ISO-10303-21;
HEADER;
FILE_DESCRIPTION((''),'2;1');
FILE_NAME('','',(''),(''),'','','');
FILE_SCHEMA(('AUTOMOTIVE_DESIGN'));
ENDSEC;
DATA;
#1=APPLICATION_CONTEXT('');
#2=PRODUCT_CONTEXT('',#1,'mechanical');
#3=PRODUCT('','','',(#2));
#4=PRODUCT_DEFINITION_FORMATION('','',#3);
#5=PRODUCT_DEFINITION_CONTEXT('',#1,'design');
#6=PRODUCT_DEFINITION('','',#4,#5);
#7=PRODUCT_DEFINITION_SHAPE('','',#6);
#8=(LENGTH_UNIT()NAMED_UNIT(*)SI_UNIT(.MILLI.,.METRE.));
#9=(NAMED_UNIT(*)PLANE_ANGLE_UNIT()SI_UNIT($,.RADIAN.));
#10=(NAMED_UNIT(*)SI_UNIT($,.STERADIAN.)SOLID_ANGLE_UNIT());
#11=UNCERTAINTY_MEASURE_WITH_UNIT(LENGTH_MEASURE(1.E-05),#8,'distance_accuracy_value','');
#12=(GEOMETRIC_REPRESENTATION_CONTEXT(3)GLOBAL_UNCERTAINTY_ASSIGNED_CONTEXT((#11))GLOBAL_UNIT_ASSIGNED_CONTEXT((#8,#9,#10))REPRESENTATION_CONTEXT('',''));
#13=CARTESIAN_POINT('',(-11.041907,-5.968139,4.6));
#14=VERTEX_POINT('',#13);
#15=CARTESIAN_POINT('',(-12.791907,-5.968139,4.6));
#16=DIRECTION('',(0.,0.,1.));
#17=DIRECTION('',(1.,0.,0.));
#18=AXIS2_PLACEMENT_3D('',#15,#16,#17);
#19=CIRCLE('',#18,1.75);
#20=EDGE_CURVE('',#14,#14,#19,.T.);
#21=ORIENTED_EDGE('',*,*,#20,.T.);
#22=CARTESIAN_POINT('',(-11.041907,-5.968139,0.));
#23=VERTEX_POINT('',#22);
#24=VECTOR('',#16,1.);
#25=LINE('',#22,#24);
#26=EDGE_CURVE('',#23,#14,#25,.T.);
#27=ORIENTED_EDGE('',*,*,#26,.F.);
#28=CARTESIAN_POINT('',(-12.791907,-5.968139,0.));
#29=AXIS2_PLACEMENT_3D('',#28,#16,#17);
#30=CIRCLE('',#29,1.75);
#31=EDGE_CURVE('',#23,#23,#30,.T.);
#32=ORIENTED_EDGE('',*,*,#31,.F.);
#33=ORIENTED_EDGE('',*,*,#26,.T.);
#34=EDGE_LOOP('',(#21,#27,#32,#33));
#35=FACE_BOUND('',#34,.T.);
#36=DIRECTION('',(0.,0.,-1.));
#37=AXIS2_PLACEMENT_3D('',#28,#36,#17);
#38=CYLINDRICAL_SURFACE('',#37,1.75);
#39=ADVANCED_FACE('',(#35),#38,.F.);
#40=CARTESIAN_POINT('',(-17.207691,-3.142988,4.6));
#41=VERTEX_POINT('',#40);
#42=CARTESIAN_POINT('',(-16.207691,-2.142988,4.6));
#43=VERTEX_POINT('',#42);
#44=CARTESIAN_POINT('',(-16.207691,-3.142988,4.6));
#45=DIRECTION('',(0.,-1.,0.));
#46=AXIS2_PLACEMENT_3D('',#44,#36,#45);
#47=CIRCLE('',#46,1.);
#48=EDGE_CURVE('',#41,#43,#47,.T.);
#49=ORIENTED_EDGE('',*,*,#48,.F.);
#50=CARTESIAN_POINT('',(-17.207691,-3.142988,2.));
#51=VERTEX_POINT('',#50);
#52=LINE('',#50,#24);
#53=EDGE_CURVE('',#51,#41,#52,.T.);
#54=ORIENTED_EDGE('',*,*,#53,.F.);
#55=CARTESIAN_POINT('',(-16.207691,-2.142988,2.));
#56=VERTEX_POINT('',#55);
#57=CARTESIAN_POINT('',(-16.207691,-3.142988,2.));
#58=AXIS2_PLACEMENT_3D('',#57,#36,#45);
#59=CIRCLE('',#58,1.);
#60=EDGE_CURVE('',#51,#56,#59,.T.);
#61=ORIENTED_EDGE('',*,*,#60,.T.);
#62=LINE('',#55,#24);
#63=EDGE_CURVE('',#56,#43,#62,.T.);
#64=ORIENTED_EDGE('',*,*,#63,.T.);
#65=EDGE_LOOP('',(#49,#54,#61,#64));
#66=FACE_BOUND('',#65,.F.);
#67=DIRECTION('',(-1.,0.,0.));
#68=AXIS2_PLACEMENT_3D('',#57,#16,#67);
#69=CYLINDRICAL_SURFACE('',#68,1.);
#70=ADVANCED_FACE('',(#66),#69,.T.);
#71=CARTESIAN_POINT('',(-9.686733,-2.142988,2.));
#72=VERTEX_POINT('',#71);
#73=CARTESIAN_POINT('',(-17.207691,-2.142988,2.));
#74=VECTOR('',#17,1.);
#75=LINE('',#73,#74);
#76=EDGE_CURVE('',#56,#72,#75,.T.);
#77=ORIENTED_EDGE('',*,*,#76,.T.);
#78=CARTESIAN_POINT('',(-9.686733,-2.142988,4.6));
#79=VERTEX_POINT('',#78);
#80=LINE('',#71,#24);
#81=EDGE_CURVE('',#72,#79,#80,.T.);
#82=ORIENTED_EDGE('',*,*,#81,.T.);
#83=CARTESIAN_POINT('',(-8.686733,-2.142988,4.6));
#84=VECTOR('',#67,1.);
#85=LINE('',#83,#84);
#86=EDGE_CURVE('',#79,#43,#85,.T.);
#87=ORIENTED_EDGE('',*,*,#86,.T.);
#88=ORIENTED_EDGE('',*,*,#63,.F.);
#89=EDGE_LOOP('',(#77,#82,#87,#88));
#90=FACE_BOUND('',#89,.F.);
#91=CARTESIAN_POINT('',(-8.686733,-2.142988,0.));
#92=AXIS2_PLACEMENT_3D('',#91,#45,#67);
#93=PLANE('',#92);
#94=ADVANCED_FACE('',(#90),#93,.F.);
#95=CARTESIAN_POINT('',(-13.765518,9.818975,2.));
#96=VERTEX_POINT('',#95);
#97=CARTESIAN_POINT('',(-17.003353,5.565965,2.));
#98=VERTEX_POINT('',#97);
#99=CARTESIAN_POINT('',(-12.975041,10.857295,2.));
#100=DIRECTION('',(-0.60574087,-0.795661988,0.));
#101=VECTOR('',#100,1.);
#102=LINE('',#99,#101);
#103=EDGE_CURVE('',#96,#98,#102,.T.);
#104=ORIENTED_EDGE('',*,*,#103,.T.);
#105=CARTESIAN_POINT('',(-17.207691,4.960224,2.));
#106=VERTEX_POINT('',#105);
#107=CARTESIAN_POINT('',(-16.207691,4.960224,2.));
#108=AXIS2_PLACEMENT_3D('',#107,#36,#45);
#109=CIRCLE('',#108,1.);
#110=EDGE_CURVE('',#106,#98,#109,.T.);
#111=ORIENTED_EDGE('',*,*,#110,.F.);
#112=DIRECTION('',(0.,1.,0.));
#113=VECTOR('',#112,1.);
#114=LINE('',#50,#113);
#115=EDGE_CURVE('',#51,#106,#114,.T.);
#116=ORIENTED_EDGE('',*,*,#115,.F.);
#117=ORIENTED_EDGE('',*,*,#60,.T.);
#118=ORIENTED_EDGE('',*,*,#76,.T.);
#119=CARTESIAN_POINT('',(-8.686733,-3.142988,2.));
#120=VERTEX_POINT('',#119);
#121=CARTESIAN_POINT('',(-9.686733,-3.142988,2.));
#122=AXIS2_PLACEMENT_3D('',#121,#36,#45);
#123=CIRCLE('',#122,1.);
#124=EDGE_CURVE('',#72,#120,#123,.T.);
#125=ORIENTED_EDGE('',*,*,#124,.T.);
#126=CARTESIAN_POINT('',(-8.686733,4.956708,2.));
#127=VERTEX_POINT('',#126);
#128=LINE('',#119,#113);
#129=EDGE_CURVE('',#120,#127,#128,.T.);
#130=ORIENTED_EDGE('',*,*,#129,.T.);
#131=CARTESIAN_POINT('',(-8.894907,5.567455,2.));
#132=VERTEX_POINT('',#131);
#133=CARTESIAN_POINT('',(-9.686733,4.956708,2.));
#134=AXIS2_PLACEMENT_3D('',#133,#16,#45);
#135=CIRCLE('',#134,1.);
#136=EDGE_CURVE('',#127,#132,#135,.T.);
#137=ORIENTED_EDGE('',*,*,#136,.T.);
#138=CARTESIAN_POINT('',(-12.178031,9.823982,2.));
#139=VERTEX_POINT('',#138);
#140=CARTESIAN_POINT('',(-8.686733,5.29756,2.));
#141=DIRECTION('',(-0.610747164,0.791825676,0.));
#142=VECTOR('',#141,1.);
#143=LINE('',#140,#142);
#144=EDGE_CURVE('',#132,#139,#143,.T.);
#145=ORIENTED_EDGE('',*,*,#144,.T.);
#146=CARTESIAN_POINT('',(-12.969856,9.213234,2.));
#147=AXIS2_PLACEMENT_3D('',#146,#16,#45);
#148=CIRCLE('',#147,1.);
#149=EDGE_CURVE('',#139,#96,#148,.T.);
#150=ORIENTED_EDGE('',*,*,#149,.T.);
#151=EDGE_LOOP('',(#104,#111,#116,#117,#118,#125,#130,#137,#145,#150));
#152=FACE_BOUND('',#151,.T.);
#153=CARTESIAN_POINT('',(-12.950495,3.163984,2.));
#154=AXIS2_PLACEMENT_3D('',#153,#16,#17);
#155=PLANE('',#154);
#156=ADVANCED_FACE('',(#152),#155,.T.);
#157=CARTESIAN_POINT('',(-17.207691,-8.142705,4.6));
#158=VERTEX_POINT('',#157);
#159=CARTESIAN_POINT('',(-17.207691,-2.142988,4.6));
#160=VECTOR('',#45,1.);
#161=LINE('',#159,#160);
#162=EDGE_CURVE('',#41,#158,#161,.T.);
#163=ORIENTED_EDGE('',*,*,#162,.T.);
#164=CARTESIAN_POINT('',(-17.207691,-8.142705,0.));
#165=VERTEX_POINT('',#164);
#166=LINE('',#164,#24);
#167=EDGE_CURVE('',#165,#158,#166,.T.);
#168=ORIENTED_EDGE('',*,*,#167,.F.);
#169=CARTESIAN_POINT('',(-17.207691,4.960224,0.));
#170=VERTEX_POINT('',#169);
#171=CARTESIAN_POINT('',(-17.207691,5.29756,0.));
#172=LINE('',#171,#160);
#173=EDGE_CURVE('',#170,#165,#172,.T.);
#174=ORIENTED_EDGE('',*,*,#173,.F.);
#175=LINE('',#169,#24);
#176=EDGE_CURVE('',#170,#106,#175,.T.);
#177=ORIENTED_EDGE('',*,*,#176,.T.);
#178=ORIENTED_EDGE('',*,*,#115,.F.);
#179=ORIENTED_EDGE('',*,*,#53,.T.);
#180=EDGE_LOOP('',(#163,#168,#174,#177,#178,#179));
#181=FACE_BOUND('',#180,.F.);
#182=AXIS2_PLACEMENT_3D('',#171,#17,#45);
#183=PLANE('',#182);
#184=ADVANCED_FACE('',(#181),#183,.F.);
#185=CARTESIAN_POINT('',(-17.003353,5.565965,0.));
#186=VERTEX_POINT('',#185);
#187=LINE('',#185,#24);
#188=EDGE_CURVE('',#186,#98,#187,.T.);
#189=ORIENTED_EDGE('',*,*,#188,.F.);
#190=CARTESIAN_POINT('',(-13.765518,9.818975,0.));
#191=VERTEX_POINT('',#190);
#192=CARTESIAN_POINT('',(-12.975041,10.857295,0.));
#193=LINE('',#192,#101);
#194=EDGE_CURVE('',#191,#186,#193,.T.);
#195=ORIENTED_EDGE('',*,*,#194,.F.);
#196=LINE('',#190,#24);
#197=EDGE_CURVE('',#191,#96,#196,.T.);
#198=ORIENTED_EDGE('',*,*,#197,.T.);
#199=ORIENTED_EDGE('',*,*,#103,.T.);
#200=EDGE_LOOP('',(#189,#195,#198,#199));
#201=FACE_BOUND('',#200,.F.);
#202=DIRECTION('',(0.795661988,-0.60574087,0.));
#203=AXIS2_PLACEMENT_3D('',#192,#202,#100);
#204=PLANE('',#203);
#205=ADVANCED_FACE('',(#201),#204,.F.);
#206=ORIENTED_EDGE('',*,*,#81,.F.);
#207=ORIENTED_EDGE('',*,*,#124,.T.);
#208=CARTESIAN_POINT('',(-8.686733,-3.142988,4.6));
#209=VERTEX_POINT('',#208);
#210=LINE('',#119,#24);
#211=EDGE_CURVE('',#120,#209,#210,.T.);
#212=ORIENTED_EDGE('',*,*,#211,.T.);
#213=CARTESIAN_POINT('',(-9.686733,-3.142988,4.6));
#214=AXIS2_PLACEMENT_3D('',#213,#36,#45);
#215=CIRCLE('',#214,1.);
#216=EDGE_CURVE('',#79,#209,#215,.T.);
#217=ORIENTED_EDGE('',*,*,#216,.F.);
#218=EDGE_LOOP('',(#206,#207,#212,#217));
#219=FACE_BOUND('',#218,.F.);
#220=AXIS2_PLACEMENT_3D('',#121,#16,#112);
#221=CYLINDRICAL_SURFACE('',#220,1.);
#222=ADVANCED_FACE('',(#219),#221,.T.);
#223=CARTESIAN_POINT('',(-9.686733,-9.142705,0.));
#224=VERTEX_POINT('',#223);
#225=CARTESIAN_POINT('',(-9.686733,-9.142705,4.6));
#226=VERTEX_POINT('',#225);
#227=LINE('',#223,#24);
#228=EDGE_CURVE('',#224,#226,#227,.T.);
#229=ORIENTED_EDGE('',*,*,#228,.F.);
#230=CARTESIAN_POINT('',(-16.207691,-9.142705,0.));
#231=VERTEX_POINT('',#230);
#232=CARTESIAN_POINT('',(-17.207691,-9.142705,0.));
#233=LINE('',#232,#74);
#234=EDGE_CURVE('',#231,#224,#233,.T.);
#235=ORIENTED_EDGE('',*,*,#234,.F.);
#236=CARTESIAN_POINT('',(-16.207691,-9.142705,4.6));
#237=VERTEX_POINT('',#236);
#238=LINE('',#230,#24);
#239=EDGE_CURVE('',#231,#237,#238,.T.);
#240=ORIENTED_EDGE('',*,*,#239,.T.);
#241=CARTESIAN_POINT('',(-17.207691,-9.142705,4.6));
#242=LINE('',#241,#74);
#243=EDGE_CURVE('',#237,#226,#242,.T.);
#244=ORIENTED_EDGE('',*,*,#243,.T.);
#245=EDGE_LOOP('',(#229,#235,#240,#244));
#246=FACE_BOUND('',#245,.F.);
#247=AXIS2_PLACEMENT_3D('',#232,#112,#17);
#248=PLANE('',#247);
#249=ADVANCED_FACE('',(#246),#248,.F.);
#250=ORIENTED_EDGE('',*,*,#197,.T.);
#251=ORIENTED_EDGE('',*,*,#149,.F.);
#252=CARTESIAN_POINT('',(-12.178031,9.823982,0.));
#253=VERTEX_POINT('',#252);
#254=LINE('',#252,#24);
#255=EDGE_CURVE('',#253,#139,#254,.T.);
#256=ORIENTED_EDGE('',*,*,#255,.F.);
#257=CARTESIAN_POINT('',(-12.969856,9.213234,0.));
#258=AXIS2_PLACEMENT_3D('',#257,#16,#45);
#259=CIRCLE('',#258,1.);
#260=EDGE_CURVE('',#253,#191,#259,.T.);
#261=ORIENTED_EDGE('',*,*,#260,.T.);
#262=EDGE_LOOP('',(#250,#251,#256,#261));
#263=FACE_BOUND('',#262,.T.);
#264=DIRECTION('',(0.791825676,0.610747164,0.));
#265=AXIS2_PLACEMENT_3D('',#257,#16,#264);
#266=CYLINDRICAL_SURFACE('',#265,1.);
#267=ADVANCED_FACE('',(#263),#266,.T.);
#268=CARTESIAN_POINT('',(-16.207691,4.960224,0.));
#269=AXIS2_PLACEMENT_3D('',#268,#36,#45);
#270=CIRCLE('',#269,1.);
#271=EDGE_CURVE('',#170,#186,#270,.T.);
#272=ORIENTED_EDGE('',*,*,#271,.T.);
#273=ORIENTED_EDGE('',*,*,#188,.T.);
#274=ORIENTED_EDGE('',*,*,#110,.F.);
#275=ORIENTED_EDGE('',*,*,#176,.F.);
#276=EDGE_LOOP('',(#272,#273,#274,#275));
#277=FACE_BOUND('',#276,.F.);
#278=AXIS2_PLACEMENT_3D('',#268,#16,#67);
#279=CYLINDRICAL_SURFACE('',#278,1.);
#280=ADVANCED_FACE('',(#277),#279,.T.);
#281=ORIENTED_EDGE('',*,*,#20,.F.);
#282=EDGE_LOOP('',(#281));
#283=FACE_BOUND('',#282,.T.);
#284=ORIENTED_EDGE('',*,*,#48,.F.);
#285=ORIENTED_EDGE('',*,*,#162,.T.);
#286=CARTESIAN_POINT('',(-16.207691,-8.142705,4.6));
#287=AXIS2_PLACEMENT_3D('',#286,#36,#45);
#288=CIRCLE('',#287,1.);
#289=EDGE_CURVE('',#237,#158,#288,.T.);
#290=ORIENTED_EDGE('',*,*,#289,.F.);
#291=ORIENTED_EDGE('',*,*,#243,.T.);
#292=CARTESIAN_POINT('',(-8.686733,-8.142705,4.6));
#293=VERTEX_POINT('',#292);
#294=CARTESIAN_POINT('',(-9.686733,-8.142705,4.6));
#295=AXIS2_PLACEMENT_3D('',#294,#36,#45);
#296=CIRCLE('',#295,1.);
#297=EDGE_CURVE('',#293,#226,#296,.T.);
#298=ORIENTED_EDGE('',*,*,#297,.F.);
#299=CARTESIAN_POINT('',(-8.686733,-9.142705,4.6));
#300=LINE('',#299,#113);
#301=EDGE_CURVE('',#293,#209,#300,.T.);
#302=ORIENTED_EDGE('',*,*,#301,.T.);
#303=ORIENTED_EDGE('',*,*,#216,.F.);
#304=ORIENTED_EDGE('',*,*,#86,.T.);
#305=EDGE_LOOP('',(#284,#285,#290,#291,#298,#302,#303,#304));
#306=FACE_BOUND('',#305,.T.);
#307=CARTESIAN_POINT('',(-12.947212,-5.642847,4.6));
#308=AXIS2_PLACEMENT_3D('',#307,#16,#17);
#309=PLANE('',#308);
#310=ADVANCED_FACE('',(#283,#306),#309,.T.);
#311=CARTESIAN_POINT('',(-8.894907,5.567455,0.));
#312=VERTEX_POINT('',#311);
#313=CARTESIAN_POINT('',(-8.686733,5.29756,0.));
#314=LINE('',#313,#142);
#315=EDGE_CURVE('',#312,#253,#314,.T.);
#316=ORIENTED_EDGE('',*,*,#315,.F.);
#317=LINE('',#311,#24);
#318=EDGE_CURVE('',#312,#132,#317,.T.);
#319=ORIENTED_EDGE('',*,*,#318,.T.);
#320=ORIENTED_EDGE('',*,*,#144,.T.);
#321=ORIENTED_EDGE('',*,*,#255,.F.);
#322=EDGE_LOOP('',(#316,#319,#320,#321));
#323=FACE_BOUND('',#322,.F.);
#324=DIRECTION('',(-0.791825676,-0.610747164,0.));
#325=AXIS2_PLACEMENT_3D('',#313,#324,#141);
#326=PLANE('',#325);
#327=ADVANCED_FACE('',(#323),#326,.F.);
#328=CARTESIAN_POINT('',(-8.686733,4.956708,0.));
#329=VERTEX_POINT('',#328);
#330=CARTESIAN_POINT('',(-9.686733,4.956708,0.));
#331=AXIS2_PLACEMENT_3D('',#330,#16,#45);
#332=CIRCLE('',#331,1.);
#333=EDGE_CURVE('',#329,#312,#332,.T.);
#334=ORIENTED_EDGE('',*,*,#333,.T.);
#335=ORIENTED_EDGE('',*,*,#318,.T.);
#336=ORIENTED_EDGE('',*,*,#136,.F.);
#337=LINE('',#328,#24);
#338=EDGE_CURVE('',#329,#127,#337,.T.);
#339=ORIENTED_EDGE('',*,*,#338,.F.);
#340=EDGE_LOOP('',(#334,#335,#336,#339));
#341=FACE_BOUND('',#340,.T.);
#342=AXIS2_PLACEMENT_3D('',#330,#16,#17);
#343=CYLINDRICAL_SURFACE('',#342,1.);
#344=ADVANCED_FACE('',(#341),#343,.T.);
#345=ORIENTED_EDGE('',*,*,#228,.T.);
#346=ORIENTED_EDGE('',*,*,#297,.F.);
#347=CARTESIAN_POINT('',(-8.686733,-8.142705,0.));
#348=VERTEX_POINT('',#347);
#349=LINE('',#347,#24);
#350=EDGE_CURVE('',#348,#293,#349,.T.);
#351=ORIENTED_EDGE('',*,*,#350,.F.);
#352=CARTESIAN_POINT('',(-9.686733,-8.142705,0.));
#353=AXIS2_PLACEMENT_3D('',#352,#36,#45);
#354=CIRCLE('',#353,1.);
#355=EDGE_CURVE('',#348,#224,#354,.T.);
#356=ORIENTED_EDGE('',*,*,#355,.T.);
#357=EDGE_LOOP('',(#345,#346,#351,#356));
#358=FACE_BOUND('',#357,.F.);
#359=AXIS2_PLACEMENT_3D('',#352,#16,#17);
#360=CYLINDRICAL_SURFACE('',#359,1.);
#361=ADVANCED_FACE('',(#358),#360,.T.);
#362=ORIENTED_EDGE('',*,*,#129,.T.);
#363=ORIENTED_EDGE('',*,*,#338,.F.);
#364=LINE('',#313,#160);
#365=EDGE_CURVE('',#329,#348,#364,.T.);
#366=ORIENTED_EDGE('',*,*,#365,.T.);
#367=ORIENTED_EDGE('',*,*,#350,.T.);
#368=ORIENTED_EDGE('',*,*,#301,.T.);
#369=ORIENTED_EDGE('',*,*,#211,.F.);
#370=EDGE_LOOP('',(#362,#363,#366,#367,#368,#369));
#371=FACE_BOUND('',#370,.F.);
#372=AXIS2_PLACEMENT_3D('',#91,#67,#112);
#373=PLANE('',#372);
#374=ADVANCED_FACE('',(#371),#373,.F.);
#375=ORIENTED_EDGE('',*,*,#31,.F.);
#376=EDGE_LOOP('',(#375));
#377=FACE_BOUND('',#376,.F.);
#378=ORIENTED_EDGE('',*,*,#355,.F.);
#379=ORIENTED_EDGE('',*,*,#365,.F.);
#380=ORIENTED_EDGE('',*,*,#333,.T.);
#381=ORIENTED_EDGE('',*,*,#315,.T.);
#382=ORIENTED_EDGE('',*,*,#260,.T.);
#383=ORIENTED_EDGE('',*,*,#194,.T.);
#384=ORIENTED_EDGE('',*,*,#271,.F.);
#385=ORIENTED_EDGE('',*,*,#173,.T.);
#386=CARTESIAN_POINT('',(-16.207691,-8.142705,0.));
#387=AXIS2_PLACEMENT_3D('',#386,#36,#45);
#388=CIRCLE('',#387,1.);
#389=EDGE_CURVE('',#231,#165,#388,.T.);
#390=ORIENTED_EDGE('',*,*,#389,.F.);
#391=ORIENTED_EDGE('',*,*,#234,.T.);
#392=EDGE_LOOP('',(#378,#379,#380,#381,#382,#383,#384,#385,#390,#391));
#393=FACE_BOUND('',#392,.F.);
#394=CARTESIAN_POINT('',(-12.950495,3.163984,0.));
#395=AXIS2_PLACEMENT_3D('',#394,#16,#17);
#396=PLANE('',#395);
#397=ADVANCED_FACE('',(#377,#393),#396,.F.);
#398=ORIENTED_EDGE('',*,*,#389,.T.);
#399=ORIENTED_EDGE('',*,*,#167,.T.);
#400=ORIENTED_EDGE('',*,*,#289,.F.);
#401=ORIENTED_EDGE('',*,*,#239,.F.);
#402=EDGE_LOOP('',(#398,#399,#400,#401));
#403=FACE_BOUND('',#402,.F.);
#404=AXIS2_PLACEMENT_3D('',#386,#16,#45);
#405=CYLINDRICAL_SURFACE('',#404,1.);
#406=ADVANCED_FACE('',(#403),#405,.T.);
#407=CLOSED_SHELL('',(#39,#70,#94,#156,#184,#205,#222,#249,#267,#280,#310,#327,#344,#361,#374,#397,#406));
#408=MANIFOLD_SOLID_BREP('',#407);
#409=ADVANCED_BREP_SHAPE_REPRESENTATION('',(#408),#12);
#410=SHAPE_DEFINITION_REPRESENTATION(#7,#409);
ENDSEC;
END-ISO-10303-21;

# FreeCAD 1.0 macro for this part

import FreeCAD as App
import Part
import Sketcher

V = App.Vector


def edges_at(feature, points):
    """Names of the edges that pass closest to the given points."""
    edges = feature.Shape.Edges
    near = lambda p: min(range(len(edges)), key=lambda i: edges[i].distToShape(Part.Vertex(*p))[0])
    return sorted({f"Edge{near(p) + 1}" for p in points})

doc = App.newDocument("Part")
params = doc.addObject("Spreadsheet::Sheet", "Params")
for row, (alias, value) in enumerate([
    ("sketch1_diameter", "3.5 mm"),
    ("pad1_length", "4.6 mm"),
    ("pad2_length", "2 mm"),
    ("fillet_radius", "1 mm"),
    ("fillet2_radius", "1 mm"),
    ("fillet3_radius", "1 mm"),
    ("fillet4_radius", "1 mm"),
], start=1):
    params.set(f"A{row}", alias)
    params.set(f"B{row}", "=" + value)
    params.setAlias(f"B{row}", alias)

body = doc.addObject("PartDesign::Body", "Body")

# Sketch on XY plane
sketch1 = body.newObject("Sketcher::SketchObject", "Sketch")
sketch1.AttachmentSupport = (doc.getObject("XY_Plane"), [""])
sketch1.MapMode = "FlatFace"
sketch1.addGeometry(Part.LineSegment(V(-17.2, -2.1, 0), V(-17.2, -9.1, 0)), False)
sketch1.addGeometry(Part.LineSegment(V(-17.2, -9.1, 0), V(-8.7, -9.1, 0)), False)
sketch1.addGeometry(Part.LineSegment(V(-8.7, -9.1, 0), V(-8.7, -2.1, 0)), False)
sketch1.addGeometry(Part.LineSegment(V(-8.7, -2.1, 0), V(-17.2, -2.1, 0)), False)
sketch1.addGeometry(Part.Circle(V(-12.8, -6, 0), V(0, 0, 1), 1.8), False)
sketch1.addConstraint(Sketcher.Constraint("Coincident", 0, 2, 1, 1))
sketch1.addConstraint(Sketcher.Constraint("Coincident", 1, 2, 2, 1))
sketch1.addConstraint(Sketcher.Constraint("Coincident", 2, 2, 3, 1))
sketch1.addConstraint(Sketcher.Constraint("Coincident", 3, 2, 0, 1))
sketch1.addConstraint(Sketcher.Constraint("Vertical", 0))
sketch1.addConstraint(Sketcher.Constraint("Horizontal", 1))
sketch1.addConstraint(Sketcher.Constraint("Vertical", 2))
sketch1.addConstraint(Sketcher.Constraint("Horizontal", 3))
sketch1.addConstraint(Sketcher.Constraint("Diameter", 4, 3.5))
sketch1.addConstraint(Sketcher.Constraint("DistanceX", 1, 1, 1, 2, 8.520958))
sketch1.addConstraint(Sketcher.Constraint("DistanceY", 0, 2, 0, 1, 6.999717))
sketch1.addConstraint(Sketcher.Constraint("DistanceY", 4, 3, -1, 1, 5.968139))
sketch1.addConstraint(Sketcher.Constraint("DistanceX", 0, 2, -1, 1, 17.207691))
sketch1.addConstraint(Sketcher.Constraint("DistanceY", 4, 3, 2, 2, 3.825151))
sketch1.addConstraint(Sketcher.Constraint("DistanceX", 4, 3, -1, 1, 12.791907))
sketch1.setExpression("Constraints[8]", "Params.sketch1_diameter")
pad1 = body.newObject("PartDesign::Pad", "Pad")
pad1.Profile = sketch1
pad1.setExpression("Length", "Params.pad1_length")

# Sketch on XY plane
sketch2 = body.newObject("Sketcher::SketchObject", "Sketch001")
sketch2.AttachmentSupport = (doc.getObject("XY_Plane"), [""])
sketch2.MapMode = "FlatFace"
sketch2.addGeometry(Part.LineSegment(V(-17, 5, 0), V(-17, -2, 0)), False)
sketch2.addGeometry(Part.LineSegment(V(-17, -2, 0), V(-9, -2, 0)), False)
sketch2.addGeometry(Part.LineSegment(V(-9, -2, 0), V(-9, 5, 0)), False)
sketch2.addGeometry(Part.LineSegment(V(-9, 5, 0), V(-13, 11, 0)), False)
sketch2.addGeometry(Part.LineSegment(V(-13, 11, 0), V(-17, 5, 0)), False)
sketch2.addConstraint(Sketcher.Constraint("Coincident", 0, 2, 1, 1))
sketch2.addConstraint(Sketcher.Constraint("Coincident", 1, 2, 2, 1))
sketch2.addConstraint(Sketcher.Constraint("Coincident", 2, 2, 3, 1))
sketch2.addConstraint(Sketcher.Constraint("Coincident", 3, 2, 4, 1))
sketch2.addConstraint(Sketcher.Constraint("Coincident", 4, 2, 0, 1))
sketch2.addConstraint(Sketcher.Constraint("Vertical", 0))
sketch2.addConstraint(Sketcher.Constraint("Horizontal", 1))
sketch2.addConstraint(Sketcher.Constraint("Vertical", 2))
sketch2.addConstraint(Sketcher.Constraint("Horizontal", 2, 2, 4, 2))
sketch2.addConstraint(Sketcher.Constraint("Distance", 4, 6.987559))
sketch2.addConstraint(Sketcher.Constraint("DistanceX", 1, 1, 1, 2, 8.520958))
sketch2.addConstraint(Sketcher.Constraint("DistanceY", 0, 2, 0, 1, 7.440548))
sketch2.addConstraint(Sketcher.Constraint("DistanceX", 0, 2, -1, 1, 17.207691))
sketch2.addConstraint(Sketcher.Constraint("DistanceY", -1, 1, 2, 2, 5.29756))
sketch2.addConstraint(Sketcher.Constraint("DistanceX", 3, 2, -1, 1, 12.975041))
pad2 = body.newObject("PartDesign::Pad", "Pad001")
pad2.Profile = sketch2
pad2.setExpression("Length", "Params.pad2_length")
doc.recompute()

fillet = body.newObject("PartDesign::Fillet", "Fillet")
fillet.Base = (pad2, edges_at(pad2, [(-8.687, -9.143, 2.3)]))
fillet.setExpression("Radius", "Params.fillet_radius")
doc.recompute()

fillet2 = body.newObject("PartDesign::Fillet", "Fillet001")
fillet2.Base = (fillet, edges_at(fillet, [(-17.208, -9.143, 2.3)]))
fillet2.setExpression("Radius", "Params.fillet2_radius")
doc.recompute()

fillet3 = body.newObject("PartDesign::Fillet", "Fillet002")
fillet3.Base = (fillet2, edges_at(fillet2, [(-17.208, -2.143, 3.3)]))
fillet3.setExpression("Radius", "Params.fillet3_radius")
doc.recompute()

fillet4 = body.newObject("PartDesign::Fillet", "Fillet003")
fillet4.Base = (fillet3, edges_at(fillet3, [
    (-8.687, -2.143, 3.3),
    (-12.975, 10.857, 1),
    (-8.687, 5.298, 1),
    (-17.208, 5.298, 1),
]))
fillet4.setExpression("Radius", "Params.fillet4_radius")

doc.recompute()
